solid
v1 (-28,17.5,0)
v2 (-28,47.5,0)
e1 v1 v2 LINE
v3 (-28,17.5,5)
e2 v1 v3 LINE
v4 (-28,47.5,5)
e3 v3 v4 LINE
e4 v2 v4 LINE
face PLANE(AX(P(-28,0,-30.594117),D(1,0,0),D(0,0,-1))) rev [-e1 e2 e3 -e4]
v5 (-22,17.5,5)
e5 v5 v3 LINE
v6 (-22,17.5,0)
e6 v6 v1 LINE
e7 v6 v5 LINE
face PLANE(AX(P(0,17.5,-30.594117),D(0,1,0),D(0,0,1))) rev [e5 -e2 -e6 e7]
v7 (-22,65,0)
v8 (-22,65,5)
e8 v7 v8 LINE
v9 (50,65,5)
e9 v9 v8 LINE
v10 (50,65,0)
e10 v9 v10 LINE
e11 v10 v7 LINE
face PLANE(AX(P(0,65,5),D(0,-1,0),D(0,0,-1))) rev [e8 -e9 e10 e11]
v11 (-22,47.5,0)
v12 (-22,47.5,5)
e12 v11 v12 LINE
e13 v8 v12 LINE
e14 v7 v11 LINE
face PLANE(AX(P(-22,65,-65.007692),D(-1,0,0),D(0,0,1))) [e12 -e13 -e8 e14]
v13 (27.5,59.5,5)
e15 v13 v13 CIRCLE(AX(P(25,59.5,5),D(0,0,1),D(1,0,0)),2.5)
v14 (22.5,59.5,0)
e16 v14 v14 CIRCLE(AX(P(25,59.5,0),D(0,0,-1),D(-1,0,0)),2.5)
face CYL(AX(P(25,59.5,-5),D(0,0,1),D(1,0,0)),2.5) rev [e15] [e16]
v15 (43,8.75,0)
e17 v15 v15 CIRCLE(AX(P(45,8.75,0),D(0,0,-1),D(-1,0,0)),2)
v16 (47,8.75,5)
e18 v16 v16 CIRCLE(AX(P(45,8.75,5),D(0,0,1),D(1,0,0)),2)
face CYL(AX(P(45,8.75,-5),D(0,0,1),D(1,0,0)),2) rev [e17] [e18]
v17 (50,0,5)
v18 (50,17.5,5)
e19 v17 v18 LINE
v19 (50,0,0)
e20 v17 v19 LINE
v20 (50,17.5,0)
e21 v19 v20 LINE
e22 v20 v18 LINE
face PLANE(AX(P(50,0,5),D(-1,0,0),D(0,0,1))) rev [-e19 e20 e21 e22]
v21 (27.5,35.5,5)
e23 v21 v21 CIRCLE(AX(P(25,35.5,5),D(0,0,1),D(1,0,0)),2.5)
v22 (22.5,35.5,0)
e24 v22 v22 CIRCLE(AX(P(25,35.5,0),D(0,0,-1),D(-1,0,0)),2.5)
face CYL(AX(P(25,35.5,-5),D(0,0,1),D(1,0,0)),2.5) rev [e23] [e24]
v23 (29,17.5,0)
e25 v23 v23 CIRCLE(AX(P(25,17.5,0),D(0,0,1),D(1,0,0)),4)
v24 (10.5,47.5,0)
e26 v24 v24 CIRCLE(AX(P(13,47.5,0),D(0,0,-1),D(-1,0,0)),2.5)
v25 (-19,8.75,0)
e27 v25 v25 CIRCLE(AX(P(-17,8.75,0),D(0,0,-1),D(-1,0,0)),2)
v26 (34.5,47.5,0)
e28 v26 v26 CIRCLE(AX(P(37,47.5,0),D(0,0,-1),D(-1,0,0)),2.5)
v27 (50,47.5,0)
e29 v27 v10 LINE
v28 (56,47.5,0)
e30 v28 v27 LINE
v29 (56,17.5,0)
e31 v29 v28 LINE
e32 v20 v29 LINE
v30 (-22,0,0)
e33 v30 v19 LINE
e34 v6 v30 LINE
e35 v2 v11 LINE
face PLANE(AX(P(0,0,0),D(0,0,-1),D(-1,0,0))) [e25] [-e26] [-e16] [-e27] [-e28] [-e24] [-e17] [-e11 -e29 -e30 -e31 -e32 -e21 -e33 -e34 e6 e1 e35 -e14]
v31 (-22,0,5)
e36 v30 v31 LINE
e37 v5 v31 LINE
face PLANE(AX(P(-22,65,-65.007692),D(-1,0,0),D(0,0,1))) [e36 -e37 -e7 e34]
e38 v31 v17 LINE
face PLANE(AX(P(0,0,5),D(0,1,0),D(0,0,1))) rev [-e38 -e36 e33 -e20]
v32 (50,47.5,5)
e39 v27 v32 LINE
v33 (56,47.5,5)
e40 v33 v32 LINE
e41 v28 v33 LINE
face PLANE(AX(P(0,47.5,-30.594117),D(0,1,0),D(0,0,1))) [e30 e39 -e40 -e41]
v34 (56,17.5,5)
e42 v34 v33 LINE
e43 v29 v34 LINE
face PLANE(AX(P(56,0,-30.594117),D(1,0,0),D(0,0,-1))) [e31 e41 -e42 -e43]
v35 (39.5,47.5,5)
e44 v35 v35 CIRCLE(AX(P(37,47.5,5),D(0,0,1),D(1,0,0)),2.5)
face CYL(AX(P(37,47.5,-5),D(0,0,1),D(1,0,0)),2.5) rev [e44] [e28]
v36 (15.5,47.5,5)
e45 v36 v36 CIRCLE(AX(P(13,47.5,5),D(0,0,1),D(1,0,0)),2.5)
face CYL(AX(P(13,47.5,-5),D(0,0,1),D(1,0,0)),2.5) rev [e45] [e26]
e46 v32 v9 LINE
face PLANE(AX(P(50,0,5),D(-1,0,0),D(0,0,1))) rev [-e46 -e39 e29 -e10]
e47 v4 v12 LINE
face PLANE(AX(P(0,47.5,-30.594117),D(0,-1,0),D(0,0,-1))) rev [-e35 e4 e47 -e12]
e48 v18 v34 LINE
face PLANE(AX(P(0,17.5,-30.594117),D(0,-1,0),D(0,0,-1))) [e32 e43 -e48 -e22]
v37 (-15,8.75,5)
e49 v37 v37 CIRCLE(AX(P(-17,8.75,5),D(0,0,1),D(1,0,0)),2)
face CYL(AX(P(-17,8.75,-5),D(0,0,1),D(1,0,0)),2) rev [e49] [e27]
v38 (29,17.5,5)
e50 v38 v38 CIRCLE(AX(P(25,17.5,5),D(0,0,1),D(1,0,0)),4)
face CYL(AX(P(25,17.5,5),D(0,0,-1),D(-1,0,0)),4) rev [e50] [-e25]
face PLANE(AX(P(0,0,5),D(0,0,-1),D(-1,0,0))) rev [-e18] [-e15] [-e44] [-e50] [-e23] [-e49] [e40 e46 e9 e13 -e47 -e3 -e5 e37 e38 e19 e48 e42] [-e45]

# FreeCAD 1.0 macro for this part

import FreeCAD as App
import Part
import Sketcher

V = App.Vector

doc = App.newDocument("Part")
body = doc.addObject("PartDesign::Body", "Body")

# Sketch on XY plane
sketch1 = body.newObject("Sketcher::SketchObject", "Sketch")
sketch1.AttachmentSupport = (doc.getObject("XY_Plane"), [""])
sketch1.MapMode = "FlatFace"
sketch1.addGeometry([
    Part.LineSegment(V(0, 65, 0), V(0, 0, 0)),  # 0
    Part.LineSegment(V(0, 0, 0), V(50, 0, 0)),  # 1
    Part.LineSegment(V(50, 0, 0), V(50, 65, 0)),  # 2
    Part.LineSegment(V(50, 65, 0), V(0, 65, 0)),  # 3
    Part.Circle(V(25, 17.5, 0), V(0, 0, 1), 4),  # 4
    Part.Circle(V(13, 47.5, 0), V(0, 0, 1), 2),  # 5
    Part.Circle(V(37, 47.5, 0), V(0, 0, 1), 2),  # 6
    Part.Circle(V(25, 59.5, 0), V(0, 0, 1), 2),  # 7
], False)
sketch1.addConstraint([
    Sketcher.Constraint("Coincident", 0, 2, 1, 1),
    Sketcher.Constraint("Coincident", 1, 2, 2, 1),
    Sketcher.Constraint("Coincident", 2, 2, 3, 1),
    Sketcher.Constraint("Coincident", 3, 2, 0, 1),
    Sketcher.Constraint("Vertical", 0),
    Sketcher.Constraint("Horizontal", 1),
    Sketcher.Constraint("Vertical", 2),
    Sketcher.Constraint("Horizontal", 3),
    Sketcher.Constraint("Coincident", 0, 2, -1, 1),
    Sketcher.Constraint("Equal", 5, 6),
    Sketcher.Constraint("Equal", 6, 7),
    Sketcher.Constraint("Horizontal", 5, 3, 6, 3),
    Sketcher.Constraint("Vertical", 4, 3, 7, 3),
    Sketcher.Constraint("Diameter", 4, 8.0),
    Sketcher.Constraint("Diameter", 5, 4.0),
    Sketcher.Constraint("DistanceX", 1, 1, 1, 2, 50.0),
    Sketcher.Constraint("DistanceY", 0, 2, 0, 1, 65.0),
    Sketcher.Constraint("DistanceX", -1, 1, 4, 3, 25.0),
    Sketcher.Constraint("DistanceX", -1, 1, 5, 3, 13.0),
    Sketcher.Constraint("DistanceX", -1, 1, 6, 3, 37.0),
    Sketcher.Constraint("DistanceY", 4, 3, 5, 3, 30.0),
    Sketcher.Constraint("DistanceY", 5, 3, 7, 3, 12.0),
    Sketcher.Constraint("DistanceY", -1, 1, 4, 3, 17.5),
])
pad1 = body.newObject("PartDesign::Pad", "Pad")
pad1.Profile = sketch1
pad1.Length = 5

# Sketch on XY plane
sketch2 = body.newObject("Sketcher::SketchObject", "Sketch001")
sketch2.AttachmentSupport = (doc.getObject("XY_Plane"), [""])
sketch2.MapMode = "FlatFace"
sketch2.AttachmentOffset = App.Placement(V(0, 0, 5), App.Rotation())
sketch2.addGeometry([
    Part.LineSegment(V(-21, 65, 0), V(-21, 0, 0)),
    Part.LineSegment(V(-21, 0, 0), V(0, 0, 0)),
    Part.LineSegment(V(0, 0, 0), V(0, 65, 0)),
    Part.LineSegment(V(0, 65, 0), V(-21, 65, 0)),
], False)
sketch2.addConstraint([
    Sketcher.Constraint("Coincident", 0, 2, 1, 1),
    Sketcher.Constraint("Coincident", 1, 2, 2, 1),
    Sketcher.Constraint("Coincident", 2, 2, 3, 1),
    Sketcher.Constraint("Coincident", 3, 2, 0, 1),
    Sketcher.Constraint("Vertical", 0),
    Sketcher.Constraint("Horizontal", 1),
    Sketcher.Constraint("Vertical", 2),
    Sketcher.Constraint("Horizontal", 3),
    Sketcher.Constraint("Coincident", 1, 2, -1, 1),
    Sketcher.Constraint("DistanceX", 1, 1, 1, 2, 21.0),
    Sketcher.Constraint("DistanceY", 0, 2, 0, 1, 65.0),
])
pad2 = body.newObject("PartDesign::Pad", "Pad001")
pad2.Profile = sketch2
pad2.Length = 5
pad2.Reversed = True

# Sketch on XY plane
sketch3 = body.newObject("Sketcher::SketchObject", "Sketch002")
sketch3.AttachmentSupport = (doc.getObject("XY_Plane"), [""])
sketch3.MapMode = "FlatFace"
sketch3.AttachmentOffset = App.Placement(V(0, 0, 5), App.Rotation())
sketch3.addGeometry([
    Part.LineSegment(V(-22, 65, 0), V(-22, 0, 0)),
    Part.LineSegment(V(-22, 0, 0), V(-21, 0, 0)),
    Part.LineSegment(V(-21, 0, 0), V(-21, 65, 0)),
    Part.LineSegment(V(-21, 65, 0), V(-22, 65, 0)),
], False)
sketch3.addConstraint([
    Sketcher.Constraint("Coincident", 0, 2, 1, 1),
    Sketcher.Constraint("Coincident", 1, 2, 2, 1),
    Sketcher.Constraint("Coincident", 2, 2, 3, 1),
    Sketcher.Constraint("Coincident", 3, 2, 0, 1),
    Sketcher.Constraint("Vertical", 0),
    Sketcher.Constraint("Horizontal", 1),
    Sketcher.Constraint("Vertical", 2),
    Sketcher.Constraint("Horizontal", 3),
    Sketcher.Constraint("PointOnObject", 0, 2, -1),
    Sketcher.Constraint("DistanceX", 1, 1, 1, 2, 1.0),
    Sketcher.Constraint("DistanceY", 0, 2, 0, 1, 65.0),
    Sketcher.Constraint("DistanceX", 0, 2, -1, 1, 22.0),
])
pad3 = body.newObject("PartDesign::Pad", "Pad002")
pad3.Profile = sketch3
pad3.Length = 5
pad3.Reversed = True

# Sketch on XY plane
sketch4 = body.newObject("Sketcher::SketchObject", "Sketch003")
sketch4.AttachmentSupport = (doc.getObject("XY_Plane"), [""])
sketch4.MapMode = "FlatFace"
sketch4.AttachmentOffset = App.Placement(V(0, 0, 5), App.Rotation())
sketch4.addGeometry([
    Part.LineSegment(V(-22, 17.5, 0), V(-22, 47.5, 0)),  # 0
    Part.LineSegment(V(-22, 47.5, 0), V(-28, 47.5, 0)),  # 1
    Part.LineSegment(V(-28, 47.5, 0), V(-28, 17.5, 0)),  # 2
    Part.LineSegment(V(-28, 17.5, 0), V(-22, 17.5, 0)),  # 3
    Part.LineSegment(V(56, 17.5, 0), V(56, 47.5, 0)),  # 4
    Part.LineSegment(V(56, 47.5, 0), V(50, 47.5, 0)),  # 5
    Part.LineSegment(V(50, 47.5, 0), V(50, 17.5, 0)),  # 6
    Part.LineSegment(V(50, 17.5, 0), V(56, 17.5, 0)),  # 7
], False)
sketch4.addConstraint([
    Sketcher.Constraint("Coincident", 0, 2, 1, 1),
    Sketcher.Constraint("Coincident", 1, 2, 2, 1),
    Sketcher.Constraint("Coincident", 2, 2, 3, 1),
    Sketcher.Constraint("Coincident", 3, 2, 0, 1),
    Sketcher.Constraint("Coincident", 4, 2, 5, 1),
    Sketcher.Constraint("Coincident", 5, 2, 6, 1),
    Sketcher.Constraint("Coincident", 6, 2, 7, 1),
    Sketcher.Constraint("Coincident", 7, 2, 4, 1),
    Sketcher.Constraint("Vertical", 0),
    Sketcher.Constraint("Horizontal", 1),
    Sketcher.Constraint("Vertical", 2),
    Sketcher.Constraint("Horizontal", 3),
    Sketcher.Constraint("Vertical", 4),
    Sketcher.Constraint("Horizontal", 5),
    Sketcher.Constraint("Vertical", 6),
    Sketcher.Constraint("Horizontal", 7),
    Sketcher.Constraint("Horizontal", 1, 2, 4, 2),
    Sketcher.Constraint("Horizontal", 3, 2, 6, 2),
    Sketcher.Constraint("Equal", 3, 5),
    Sketcher.Constraint("DistanceX", 1, 2, 1, 1, 6.0),
    Sketcher.Constraint("DistanceY", 0, 1, 0, 2, 30.0),
    Sketcher.Constraint("DistanceX", 0, 2, -1, 1, 22.0),
    Sketcher.Constraint("DistanceX", -1, 1, 4, 2, 56.0),
    Sketcher.Constraint("DistanceY", -1, 1, 0, 2, 47.5),
])
pad4 = body.newObject("PartDesign::Pad", "Pad003")
pad4.Profile = sketch4
pad4.Length = 5
pad4.Reversed = True

# Sketch on XY plane
sketch5 = body.newObject("Sketcher::SketchObject", "Sketch004")
sketch5.AttachmentSupport = (doc.getObject("XY_Plane"), [""])
sketch5.MapMode = "FlatFace"
sketch5.AttachmentOffset = App.Placement(V(0, 0, 5), App.Rotation())
sketch5.addGeometry(Part.Circle(V(25, 35.5, 0), V(0, 0, 1), 2), False)
sketch5.addConstraint([
    Sketcher.Constraint("Diameter", 0, 4.0),
    Sketcher.Constraint("DistanceX", -1, 1, 0, 3, 25.0),
    Sketcher.Constraint("DistanceY", -1, 1, 0, 3, 35.5),
])
pocket1 = body.newObject("PartDesign::Pocket", "Pocket")
pocket1.Profile = sketch5
pocket1.Length = 59

# Sketch on XY plane
sketch6 = body.newObject("Sketcher::SketchObject", "Sketch005")
sketch6.AttachmentSupport = (doc.getObject("XY_Plane"), [""])
sketch6.MapMode = "FlatFace"
sketch6.AttachmentOffset = App.Placement(V(0, 0, 5), App.Rotation())
sketch6.addGeometry([
    Part.Circle(V(-17, 56.25, 0), V(0, 0, 1), 1.5),
    Part.Circle(V(45, 56.25, 0), V(0, 0, 1), 1.5),
], False)
sketch6.addConstraint([
    Sketcher.Constraint("Equal", 0, 1),
    Sketcher.Constraint("Horizontal", 0, 3, 1, 3),
    Sketcher.Constraint("Diameter", 0, 3.0),
    Sketcher.Constraint("DistanceX", 0, 3, -1, 1, 17.0),
    Sketcher.Constraint("DistanceX", -1, 1, 1, 3, 45.0),
    Sketcher.Constraint("DistanceY", -1, 1, 0, 3, 56.25),
])
pocket2 = body.newObject("PartDesign::Pocket", "Pocket001")
pocket2.Profile = sketch6
pocket2.Length = 10

# Sketch on XY plane
sketch7 = body.newObject("Sketcher::SketchObject", "Sketch006")
sketch7.AttachmentSupport = (doc.getObject("XY_Plane"), [""])
sketch7.MapMode = "FlatFace"
sketch7.AttachmentOffset = App.Placement(V(0, 0, 5), App.Rotation())
sketch7.addGeometry([
    Part.Circle(V(45, 8.75, 0), V(0, 0, 1), 1.5),
    Part.Circle(V(-17, 8.75, 0), V(0, 0, 1), 1.5),
], False)
sketch7.addConstraint([
    Sketcher.Constraint("Equal", 0, 1),
    Sketcher.Constraint("Horizontal", 0, 3, 1, 3),
    Sketcher.Constraint("Diameter", 0, 3.0),
    Sketcher.Constraint("DistanceX", -1, 1, 0, 3, 45.0),
    Sketcher.Constraint("DistanceX", 1, 3, -1, 1, 17.0),
    Sketcher.Constraint("DistanceY", -1, 1, 0, 3, 8.75),
])
pocket3 = body.newObject("PartDesign::Pocket", "Pocket002")
pocket3.Profile = sketch7
pocket3.Length = 10

# Sketch on XY plane
sketch8 = body.newObject("Sketcher::SketchObject", "Sketch007")
sketch8.AttachmentSupport = (doc.getObject("XY_Plane"), [""])
sketch8.MapMode = "FlatFace"
sketch8.AttachmentOffset = App.Placement(V(0, 0, 5), App.Rotation())
sketch8.addGeometry([
    Part.Circle(V(-17, 56.25, 0), V(0, 0, 1), 1.5),
    Part.Circle(V(45, 56.25, 0), V(0, 0, 1), 1.5),
], False)
sketch8.addConstraint([
    Sketcher.Constraint("Equal", 0, 1),
    Sketcher.Constraint("Horizontal", 0, 3, 1, 3),
    Sketcher.Constraint("Diameter", 0, 3.0),
    Sketcher.Constraint("DistanceX", 0, 3, -1, 1, 17.0),
    Sketcher.Constraint("DistanceX", -1, 1, 1, 3, 45.0),
    Sketcher.Constraint("DistanceY", -1, 1, 0, 3, 56.25),
])
pad5 = body.newObject("PartDesign::Pad", "Pad004")
pad5.Profile = sketch8
pad5.Length = 5
pad5.Reversed = True

# Sketch on XY plane
sketch9 = body.newObject("Sketcher::SketchObject", "Sketch008")
sketch9.AttachmentSupport = (doc.getObject("XY_Plane"), [""])
sketch9.MapMode = "FlatFace"
sketch9.AttachmentOffset = App.Placement(V(0, 0, 5), App.Rotation())
sketch9.addGeometry([
    Part.Circle(V(-17, 8.75, 0), V(0, 0, 1), 2),
    Part.Circle(V(45, 8.75, 0), V(0, 0, 1), 2),
], False)
sketch9.addConstraint([
    Sketcher.Constraint("Equal", 0, 1),
    Sketcher.Constraint("Horizontal", 0, 3, 1, 3),
    Sketcher.Constraint("Diameter", 0, 4.0),
    Sketcher.Constraint("DistanceX", 0, 3, -1, 1, 17.0),
    Sketcher.Constraint("DistanceX", -1, 1, 1, 3, 45.0),
    Sketcher.Constraint("DistanceY", -1, 1, 0, 3, 8.75),
])
pocket4 = body.newObject("PartDesign::Pocket", "Pocket003")
pocket4.Profile = sketch9
pocket4.Length = 10

# Sketch on XY plane
sketch10 = body.newObject("Sketcher::SketchObject", "Sketch009")
sketch10.AttachmentSupport = (doc.getObject("XY_Plane"), [""])
sketch10.MapMode = "FlatFace"
sketch10.AttachmentOffset = App.Placement(V(0, 0, 5), App.Rotation())
sketch10.addGeometry([
    Part.Circle(V(25, 59.5, 0), V(0, 0, 1), 2.5),
    Part.Circle(V(25, 35.5, 0), V(0, 0, 1), 2.5),
    Part.Circle(V(13, 47.5, 0), V(0, 0, 1), 2.5),
    Part.Circle(V(37, 47.5, 0), V(0, 0, 1), 2.5),
], False)
sketch10.addConstraint([
    Sketcher.Constraint("Equal", 0, 1),
    Sketcher.Constraint("Equal", 1, 2),
    Sketcher.Constraint("Equal", 2, 3),
    Sketcher.Constraint("Horizontal", 2, 3, 3, 3),
    Sketcher.Constraint("Vertical", 0, 3, 1, 3),
    Sketcher.Constraint("Diameter", 0, 5.0),
    Sketcher.Constraint("DistanceX", -1, 1, 0, 3, 25.0),
    Sketcher.Constraint("DistanceX", -1, 1, 2, 3, 13.0),
    Sketcher.Constraint("DistanceX", -1, 1, 3, 3, 37.0),
    Sketcher.Constraint("DistanceY", 1, 3, 0, 3, 24.0),
    Sketcher.Constraint("DistanceY", 2, 3, 0, 3, 12.0),
    Sketcher.Constraint("DistanceY", -1, 1, 0, 3, 59.5),
])
pocket5 = body.newObject("PartDesign::Pocket", "Pocket004")
pocket5.Profile = sketch10
pocket5.Length = 10

doc.recompute()
